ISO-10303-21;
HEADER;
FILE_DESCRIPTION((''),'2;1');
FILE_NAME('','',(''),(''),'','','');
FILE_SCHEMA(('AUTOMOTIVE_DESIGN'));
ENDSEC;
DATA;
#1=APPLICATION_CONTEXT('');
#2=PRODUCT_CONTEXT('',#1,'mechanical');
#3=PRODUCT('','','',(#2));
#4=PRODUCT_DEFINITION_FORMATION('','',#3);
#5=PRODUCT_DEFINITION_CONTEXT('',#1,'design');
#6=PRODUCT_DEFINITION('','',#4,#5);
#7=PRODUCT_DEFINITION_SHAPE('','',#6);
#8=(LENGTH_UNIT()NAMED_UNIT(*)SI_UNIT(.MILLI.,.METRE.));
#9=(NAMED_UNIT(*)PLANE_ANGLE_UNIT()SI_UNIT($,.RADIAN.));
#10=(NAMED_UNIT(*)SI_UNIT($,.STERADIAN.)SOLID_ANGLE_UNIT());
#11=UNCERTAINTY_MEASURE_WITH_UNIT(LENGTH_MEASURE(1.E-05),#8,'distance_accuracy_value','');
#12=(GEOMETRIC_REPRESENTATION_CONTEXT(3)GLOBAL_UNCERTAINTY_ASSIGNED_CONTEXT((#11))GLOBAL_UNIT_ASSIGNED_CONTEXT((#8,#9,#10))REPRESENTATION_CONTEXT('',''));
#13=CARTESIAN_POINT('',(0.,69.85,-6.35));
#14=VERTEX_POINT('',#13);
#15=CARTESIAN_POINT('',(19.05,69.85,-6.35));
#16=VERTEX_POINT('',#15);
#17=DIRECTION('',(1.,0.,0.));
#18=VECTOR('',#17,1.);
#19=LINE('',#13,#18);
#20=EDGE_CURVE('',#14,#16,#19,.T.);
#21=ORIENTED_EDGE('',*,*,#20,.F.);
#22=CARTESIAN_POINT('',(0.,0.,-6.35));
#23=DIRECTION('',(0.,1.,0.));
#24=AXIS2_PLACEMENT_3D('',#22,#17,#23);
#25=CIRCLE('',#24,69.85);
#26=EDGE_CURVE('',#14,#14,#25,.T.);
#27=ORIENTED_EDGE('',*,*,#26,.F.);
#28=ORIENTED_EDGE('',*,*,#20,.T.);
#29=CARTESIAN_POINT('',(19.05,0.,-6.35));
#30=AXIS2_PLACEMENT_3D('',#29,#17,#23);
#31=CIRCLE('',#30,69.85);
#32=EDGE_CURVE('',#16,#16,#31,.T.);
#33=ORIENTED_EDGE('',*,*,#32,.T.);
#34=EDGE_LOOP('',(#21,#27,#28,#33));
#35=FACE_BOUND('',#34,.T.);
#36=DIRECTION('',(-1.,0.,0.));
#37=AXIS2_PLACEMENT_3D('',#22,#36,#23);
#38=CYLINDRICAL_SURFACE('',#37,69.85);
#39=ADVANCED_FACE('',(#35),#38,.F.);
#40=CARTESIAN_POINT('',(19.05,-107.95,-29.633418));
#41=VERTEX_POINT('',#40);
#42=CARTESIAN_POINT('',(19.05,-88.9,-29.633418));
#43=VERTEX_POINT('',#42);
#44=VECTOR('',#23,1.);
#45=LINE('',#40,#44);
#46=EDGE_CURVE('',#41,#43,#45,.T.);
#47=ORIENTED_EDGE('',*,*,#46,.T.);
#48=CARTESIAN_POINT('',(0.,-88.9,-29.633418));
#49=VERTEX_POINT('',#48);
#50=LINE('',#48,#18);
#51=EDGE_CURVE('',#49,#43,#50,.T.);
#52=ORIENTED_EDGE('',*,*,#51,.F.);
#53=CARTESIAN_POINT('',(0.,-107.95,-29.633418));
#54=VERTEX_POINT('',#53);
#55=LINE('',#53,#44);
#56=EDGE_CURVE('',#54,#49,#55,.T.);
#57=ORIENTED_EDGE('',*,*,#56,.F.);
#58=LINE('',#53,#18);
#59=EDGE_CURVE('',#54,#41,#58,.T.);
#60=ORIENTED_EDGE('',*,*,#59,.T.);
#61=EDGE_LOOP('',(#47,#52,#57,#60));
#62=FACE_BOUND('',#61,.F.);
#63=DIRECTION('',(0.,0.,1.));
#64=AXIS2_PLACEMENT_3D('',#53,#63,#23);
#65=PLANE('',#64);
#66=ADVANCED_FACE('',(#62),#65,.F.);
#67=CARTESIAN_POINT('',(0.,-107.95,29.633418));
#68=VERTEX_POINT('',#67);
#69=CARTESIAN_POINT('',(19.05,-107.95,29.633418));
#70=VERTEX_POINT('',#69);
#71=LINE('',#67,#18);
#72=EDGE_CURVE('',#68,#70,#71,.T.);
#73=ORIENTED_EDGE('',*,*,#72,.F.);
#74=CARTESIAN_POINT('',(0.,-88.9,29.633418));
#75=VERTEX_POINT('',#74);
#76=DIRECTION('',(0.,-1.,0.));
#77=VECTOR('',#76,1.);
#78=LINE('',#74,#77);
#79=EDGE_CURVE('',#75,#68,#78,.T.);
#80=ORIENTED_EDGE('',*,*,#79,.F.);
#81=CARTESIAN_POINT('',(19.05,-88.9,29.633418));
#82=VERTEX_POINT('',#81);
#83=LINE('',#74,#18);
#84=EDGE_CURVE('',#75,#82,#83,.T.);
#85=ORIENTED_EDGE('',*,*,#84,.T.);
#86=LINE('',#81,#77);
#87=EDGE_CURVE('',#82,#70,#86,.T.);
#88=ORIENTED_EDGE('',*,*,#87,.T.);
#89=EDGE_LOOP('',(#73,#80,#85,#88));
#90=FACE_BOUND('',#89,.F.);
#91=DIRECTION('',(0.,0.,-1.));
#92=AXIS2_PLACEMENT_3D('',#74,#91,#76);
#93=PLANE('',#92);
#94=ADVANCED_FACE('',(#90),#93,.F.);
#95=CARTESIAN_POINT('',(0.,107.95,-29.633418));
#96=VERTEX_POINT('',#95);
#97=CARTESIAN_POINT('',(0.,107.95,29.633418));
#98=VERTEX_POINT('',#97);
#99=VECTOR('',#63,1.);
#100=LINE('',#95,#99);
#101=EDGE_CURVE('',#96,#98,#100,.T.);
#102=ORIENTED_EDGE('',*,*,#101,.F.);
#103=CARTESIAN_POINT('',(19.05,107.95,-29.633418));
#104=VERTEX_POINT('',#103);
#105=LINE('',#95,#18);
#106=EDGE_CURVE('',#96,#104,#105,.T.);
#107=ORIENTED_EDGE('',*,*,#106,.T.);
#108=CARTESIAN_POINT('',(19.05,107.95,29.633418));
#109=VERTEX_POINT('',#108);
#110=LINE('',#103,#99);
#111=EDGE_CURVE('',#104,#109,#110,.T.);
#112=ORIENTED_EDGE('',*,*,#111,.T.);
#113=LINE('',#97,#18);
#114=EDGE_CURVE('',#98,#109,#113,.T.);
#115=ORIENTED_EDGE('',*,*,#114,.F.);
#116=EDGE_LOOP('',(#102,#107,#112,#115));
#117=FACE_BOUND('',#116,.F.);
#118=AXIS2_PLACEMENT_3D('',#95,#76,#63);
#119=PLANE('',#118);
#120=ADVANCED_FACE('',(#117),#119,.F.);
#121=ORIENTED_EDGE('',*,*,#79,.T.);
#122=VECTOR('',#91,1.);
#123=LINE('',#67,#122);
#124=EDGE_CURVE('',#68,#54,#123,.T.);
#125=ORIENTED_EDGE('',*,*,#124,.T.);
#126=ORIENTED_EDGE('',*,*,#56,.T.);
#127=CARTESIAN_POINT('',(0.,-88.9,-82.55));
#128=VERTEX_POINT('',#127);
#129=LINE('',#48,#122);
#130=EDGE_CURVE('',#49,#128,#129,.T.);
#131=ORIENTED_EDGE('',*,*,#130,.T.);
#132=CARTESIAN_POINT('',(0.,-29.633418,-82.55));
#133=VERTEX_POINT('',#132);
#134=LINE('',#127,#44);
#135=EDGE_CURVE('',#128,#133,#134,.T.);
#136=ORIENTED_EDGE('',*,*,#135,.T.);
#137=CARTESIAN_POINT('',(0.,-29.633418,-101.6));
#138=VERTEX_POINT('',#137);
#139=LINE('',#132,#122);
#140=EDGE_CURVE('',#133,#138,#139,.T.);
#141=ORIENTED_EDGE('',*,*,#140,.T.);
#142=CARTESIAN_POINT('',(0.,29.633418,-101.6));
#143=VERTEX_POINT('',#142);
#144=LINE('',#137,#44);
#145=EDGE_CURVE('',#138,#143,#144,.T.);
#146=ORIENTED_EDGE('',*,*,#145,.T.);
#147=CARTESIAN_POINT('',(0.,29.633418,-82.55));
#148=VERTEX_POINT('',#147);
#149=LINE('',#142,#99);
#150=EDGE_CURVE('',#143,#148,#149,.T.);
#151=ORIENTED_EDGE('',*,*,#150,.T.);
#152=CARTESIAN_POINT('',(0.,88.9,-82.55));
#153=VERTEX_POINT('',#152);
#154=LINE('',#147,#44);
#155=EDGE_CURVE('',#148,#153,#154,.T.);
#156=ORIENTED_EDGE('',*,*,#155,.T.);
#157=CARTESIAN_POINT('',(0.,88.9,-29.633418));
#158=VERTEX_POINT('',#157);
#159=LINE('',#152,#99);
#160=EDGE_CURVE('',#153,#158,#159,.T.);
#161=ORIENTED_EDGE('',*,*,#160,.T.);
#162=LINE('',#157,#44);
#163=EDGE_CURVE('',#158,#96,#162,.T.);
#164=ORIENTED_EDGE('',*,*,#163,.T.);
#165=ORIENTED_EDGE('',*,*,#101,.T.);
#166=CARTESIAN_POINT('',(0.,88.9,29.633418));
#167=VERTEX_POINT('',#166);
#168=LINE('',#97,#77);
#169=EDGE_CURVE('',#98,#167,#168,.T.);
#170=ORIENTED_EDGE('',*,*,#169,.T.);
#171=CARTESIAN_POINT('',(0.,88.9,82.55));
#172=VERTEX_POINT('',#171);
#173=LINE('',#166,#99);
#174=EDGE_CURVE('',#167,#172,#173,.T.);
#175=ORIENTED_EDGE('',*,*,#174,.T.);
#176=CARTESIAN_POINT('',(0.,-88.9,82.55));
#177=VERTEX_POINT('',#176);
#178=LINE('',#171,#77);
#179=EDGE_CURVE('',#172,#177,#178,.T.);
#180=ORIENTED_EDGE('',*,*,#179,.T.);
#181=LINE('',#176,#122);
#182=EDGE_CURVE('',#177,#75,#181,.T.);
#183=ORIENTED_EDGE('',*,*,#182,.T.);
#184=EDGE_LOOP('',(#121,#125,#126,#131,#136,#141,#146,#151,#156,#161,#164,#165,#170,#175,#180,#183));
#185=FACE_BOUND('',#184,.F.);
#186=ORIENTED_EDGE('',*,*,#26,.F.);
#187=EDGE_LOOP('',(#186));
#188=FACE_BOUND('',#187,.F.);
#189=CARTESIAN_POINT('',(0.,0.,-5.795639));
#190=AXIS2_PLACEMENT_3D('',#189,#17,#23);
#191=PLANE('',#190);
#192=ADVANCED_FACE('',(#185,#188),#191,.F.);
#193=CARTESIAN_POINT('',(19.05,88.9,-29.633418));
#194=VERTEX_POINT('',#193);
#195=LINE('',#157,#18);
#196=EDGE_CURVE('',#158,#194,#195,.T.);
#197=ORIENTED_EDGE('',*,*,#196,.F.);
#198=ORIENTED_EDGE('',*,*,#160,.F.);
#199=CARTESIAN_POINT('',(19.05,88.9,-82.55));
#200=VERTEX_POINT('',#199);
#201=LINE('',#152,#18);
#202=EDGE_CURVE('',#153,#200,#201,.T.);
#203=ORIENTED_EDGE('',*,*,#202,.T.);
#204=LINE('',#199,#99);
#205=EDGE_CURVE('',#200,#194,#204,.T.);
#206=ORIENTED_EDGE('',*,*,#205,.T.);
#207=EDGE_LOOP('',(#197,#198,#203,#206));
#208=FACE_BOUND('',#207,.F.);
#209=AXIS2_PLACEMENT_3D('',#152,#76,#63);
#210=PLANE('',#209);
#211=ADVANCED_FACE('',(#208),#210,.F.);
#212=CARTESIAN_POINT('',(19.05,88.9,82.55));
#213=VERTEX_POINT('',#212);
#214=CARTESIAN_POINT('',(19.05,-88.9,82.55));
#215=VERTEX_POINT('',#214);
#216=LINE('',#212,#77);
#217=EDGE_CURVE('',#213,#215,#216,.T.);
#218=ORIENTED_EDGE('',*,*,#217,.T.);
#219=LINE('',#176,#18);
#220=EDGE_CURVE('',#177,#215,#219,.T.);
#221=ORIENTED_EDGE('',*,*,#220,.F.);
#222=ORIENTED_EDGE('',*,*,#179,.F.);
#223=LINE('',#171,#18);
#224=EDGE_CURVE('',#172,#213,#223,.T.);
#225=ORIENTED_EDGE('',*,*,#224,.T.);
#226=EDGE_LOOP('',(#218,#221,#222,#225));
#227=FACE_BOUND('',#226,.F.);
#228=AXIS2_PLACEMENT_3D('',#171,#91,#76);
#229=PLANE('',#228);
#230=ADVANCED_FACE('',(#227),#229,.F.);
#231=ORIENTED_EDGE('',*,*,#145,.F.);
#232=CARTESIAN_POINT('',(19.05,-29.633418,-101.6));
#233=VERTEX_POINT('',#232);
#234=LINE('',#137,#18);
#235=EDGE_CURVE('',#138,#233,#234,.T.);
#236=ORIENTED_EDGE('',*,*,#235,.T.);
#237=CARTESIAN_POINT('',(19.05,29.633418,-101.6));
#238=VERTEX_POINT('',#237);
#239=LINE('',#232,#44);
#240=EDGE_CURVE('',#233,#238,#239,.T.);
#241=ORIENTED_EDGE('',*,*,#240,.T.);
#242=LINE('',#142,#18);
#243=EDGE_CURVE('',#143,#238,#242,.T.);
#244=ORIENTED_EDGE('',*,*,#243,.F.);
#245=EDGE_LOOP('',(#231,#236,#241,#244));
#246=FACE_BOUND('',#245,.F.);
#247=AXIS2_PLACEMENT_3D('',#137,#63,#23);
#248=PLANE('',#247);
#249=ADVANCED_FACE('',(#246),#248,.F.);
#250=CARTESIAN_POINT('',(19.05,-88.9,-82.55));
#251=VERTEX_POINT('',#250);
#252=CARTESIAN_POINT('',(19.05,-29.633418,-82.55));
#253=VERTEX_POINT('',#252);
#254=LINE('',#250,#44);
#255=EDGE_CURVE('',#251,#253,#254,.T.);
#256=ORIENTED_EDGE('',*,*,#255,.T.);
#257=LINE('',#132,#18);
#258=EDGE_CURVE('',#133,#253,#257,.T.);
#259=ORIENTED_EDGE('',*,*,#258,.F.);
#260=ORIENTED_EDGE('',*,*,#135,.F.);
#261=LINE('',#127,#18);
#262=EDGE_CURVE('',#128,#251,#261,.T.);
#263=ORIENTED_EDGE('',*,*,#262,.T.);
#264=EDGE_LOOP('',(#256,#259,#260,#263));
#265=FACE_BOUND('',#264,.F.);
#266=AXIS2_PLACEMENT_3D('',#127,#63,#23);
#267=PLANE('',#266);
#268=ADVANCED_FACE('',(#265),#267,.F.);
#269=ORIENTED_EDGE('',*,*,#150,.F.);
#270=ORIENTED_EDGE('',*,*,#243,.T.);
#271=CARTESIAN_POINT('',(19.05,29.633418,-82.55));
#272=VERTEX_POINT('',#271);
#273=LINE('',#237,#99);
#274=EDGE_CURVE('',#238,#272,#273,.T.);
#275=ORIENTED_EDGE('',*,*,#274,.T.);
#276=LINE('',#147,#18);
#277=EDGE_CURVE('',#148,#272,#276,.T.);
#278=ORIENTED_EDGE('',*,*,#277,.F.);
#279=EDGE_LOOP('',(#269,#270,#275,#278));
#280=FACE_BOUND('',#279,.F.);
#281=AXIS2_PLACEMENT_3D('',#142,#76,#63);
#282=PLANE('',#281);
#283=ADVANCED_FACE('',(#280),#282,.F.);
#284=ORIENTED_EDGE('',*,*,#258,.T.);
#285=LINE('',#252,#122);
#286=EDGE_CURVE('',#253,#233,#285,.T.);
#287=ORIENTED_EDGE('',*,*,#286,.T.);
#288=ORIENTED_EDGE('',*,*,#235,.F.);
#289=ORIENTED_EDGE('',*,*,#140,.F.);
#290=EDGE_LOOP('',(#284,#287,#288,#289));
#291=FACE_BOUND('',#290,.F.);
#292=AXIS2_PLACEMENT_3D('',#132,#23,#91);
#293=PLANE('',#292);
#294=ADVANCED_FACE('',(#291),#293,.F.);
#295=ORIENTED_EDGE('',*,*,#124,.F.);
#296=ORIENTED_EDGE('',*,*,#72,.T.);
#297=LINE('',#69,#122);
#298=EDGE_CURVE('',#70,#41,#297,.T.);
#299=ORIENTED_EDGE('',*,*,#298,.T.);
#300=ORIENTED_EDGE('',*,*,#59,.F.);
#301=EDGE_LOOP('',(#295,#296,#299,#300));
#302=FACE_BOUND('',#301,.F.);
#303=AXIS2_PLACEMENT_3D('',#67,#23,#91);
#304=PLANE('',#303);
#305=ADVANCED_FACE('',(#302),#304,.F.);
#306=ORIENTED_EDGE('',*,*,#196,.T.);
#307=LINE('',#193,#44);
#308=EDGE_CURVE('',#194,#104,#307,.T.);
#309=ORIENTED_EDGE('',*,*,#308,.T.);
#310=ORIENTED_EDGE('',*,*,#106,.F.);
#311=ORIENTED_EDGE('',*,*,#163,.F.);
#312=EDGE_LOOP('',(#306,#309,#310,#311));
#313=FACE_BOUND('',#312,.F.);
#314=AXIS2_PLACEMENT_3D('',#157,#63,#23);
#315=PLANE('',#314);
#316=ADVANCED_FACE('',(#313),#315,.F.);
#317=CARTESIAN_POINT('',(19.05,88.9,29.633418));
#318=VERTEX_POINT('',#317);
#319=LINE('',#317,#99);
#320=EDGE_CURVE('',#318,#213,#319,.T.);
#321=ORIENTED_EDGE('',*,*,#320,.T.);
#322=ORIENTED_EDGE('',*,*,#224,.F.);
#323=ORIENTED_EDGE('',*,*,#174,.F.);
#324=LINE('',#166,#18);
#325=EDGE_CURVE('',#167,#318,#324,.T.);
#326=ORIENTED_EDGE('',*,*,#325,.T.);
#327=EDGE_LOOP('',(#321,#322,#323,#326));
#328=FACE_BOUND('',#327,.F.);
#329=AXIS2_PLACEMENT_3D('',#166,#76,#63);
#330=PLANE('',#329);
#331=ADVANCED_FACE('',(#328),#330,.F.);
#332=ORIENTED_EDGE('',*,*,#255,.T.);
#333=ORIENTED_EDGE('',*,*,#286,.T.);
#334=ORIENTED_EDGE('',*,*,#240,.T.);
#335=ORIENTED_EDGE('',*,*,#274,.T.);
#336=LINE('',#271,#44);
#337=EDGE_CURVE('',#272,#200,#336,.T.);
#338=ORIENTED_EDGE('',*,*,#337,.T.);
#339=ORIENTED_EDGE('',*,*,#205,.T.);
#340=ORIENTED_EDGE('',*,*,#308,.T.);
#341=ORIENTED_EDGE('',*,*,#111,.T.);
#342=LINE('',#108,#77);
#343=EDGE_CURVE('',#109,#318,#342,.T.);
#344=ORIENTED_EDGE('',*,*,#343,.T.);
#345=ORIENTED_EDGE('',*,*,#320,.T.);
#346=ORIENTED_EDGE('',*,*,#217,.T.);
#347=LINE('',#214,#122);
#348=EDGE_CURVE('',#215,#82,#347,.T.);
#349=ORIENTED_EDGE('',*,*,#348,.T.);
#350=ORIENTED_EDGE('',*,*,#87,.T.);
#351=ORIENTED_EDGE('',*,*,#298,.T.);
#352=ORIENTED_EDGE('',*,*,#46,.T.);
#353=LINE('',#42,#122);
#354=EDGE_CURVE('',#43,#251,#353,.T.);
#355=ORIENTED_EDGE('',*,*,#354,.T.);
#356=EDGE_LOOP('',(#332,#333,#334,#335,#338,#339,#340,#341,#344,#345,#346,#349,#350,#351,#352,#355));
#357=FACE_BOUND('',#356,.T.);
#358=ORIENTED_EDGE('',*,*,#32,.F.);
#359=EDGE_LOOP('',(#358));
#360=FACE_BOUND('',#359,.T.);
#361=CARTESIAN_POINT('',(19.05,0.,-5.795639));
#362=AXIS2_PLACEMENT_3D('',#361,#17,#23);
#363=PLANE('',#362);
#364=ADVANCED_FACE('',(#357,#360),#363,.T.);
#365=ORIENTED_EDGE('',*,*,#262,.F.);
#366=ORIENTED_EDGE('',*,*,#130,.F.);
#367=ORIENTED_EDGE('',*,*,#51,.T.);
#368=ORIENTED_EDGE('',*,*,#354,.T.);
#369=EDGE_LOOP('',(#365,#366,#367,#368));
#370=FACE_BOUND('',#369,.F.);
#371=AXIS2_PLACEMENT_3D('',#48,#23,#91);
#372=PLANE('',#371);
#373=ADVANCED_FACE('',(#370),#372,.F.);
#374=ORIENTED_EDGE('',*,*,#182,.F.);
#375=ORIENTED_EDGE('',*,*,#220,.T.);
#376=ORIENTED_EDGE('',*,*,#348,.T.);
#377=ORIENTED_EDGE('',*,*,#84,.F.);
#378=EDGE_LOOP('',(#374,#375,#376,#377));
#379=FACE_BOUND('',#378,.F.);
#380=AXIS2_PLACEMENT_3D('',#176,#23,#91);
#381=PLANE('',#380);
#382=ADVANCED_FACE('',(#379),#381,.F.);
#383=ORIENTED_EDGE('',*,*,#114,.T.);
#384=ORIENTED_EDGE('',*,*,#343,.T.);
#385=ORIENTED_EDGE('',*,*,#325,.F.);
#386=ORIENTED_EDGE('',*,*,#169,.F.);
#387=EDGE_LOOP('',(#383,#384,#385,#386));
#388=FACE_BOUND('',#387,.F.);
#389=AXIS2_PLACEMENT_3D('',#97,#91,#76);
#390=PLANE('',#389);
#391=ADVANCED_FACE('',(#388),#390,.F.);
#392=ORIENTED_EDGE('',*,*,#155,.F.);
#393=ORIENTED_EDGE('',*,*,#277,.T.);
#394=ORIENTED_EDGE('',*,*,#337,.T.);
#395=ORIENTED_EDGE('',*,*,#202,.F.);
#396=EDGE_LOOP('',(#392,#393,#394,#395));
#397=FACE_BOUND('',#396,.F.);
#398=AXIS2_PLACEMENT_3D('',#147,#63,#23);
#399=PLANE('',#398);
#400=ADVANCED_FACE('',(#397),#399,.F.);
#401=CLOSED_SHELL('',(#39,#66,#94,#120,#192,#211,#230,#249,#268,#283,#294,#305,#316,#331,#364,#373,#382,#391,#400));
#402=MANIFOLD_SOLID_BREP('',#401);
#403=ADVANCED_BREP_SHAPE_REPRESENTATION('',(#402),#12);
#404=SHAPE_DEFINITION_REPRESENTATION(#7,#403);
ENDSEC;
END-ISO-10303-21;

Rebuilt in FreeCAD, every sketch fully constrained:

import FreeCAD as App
import Part
import Sketcher
from FreeCAD import Vector
Q = App.Units.Quantity

doc = App.newDocument("Part")
body = doc.addObject("PartDesign::Body", "Body")

# Sketch on YZ plane
sketch1 = body.newObject("Sketcher::SketchObject", "Sketch")
sketch1.AttachmentSupport = (doc.getObject("YZ_Plane"), [""])
sketch1.MapMode = "FlatFace"
sketch1.addGeometry(Part.LineSegment(Vector(89, 83, 0), Vector(-89, 83, 0)), False)
sketch1.addGeometry(Part.LineSegment(Vector(-89, 83, 0), Vector(-89, 30, 0)), False)
sketch1.addGeometry(Part.LineSegment(Vector(-89, 30, 0), Vector(-108, 30, 0)), False)
sketch1.addGeometry(Part.LineSegment(Vector(-108, 30, 0), Vector(-108, -30, 0)), False)
sketch1.addGeometry(Part.LineSegment(Vector(-108, -30, 0), Vector(-89, -30, 0)), False)
sketch1.addGeometry(Part.LineSegment(Vector(-89, -30, 0), Vector(-89, -83, 0)), False)
sketch1.addGeometry(Part.LineSegment(Vector(-89, -83, 0), Vector(-30, -83, 0)), False)
sketch1.addGeometry(Part.LineSegment(Vector(-30, -83, 0), Vector(-30, -102, 0)), False)
sketch1.addGeometry(Part.LineSegment(Vector(-30, -102, 0), Vector(30, -102, 0)), False)
sketch1.addGeometry(Part.LineSegment(Vector(30, -102, 0), Vector(30, -83, 0)), False)
sketch1.addGeometry(Part.LineSegment(Vector(30, -83, 0), Vector(89, -83, 0)), False)
sketch1.addGeometry(Part.LineSegment(Vector(89, -83, 0), Vector(89, -30, 0)), False)
sketch1.addGeometry(Part.LineSegment(Vector(89, -30, 0), Vector(108, -30, 0)), False)
sketch1.addGeometry(Part.LineSegment(Vector(108, -30, 0), Vector(108, 30, 0)), False)
sketch1.addGeometry(Part.LineSegment(Vector(108, 30, 0), Vector(89, 30, 0)), False)
sketch1.addGeometry(Part.LineSegment(Vector(89, 30, 0), Vector(89, 83, 0)), False)
sketch1.addGeometry(Part.Circle(Vector(0, -6, 0), Vector(0, 0, 1), 70), False)
sketch1.addConstraint(Sketcher.Constraint("Coincident", 0, 2, 1, 1))
sketch1.addConstraint(Sketcher.Constraint("Coincident", 1, 2, 2, 1))
sketch1.addConstraint(Sketcher.Constraint("Coincident", 2, 2, 3, 1))
sketch1.addConstraint(Sketcher.Constraint("Coincident", 3, 2, 4, 1))
sketch1.addConstraint(Sketcher.Constraint("Coincident", 4, 2, 5, 1))
sketch1.addConstraint(Sketcher.Constraint("Coincident", 5, 2, 6, 1))
sketch1.addConstraint(Sketcher.Constraint("Coincident", 6, 2, 7, 1))
sketch1.addConstraint(Sketcher.Constraint("Coincident", 7, 2, 8, 1))
sketch1.addConstraint(Sketcher.Constraint("Coincident", 8, 2, 9, 1))
sketch1.addConstraint(Sketcher.Constraint("Coincident", 9, 2, 10, 1))
sketch1.addConstraint(Sketcher.Constraint("Coincident", 10, 2, 11, 1))
sketch1.addConstraint(Sketcher.Constraint("Coincident", 11, 2, 12, 1))
sketch1.addConstraint(Sketcher.Constraint("Coincident", 12, 2, 13, 1))
sketch1.addConstraint(Sketcher.Constraint("Coincident", 13, 2, 14, 1))
sketch1.addConstraint(Sketcher.Constraint("Coincident", 14, 2, 15, 1))
sketch1.addConstraint(Sketcher.Constraint("Coincident", 15, 2, 0, 1))
sketch1.addConstraint(Sketcher.Constraint("Horizontal", 0))
sketch1.addConstraint(Sketcher.Constraint("Vertical", 1))
sketch1.addConstraint(Sketcher.Constraint("Horizontal", 2))
sketch1.addConstraint(Sketcher.Constraint("Vertical", 3))
sketch1.addConstraint(Sketcher.Constraint("Horizontal", 4))
sketch1.addConstraint(Sketcher.Constraint("Vertical", 5))
sketch1.addConstraint(Sketcher.Constraint("Horizontal", 6))
sketch1.addConstraint(Sketcher.Constraint("Vertical", 7))
sketch1.addConstraint(Sketcher.Constraint("Horizontal", 8))
sketch1.addConstraint(Sketcher.Constraint("Vertical", 9))
sketch1.addConstraint(Sketcher.Constraint("Horizontal", 10))
sketch1.addConstraint(Sketcher.Constraint("Vertical", 11))
sketch1.addConstraint(Sketcher.Constraint("Horizontal", 12))
sketch1.addConstraint(Sketcher.Constraint("Vertical", 13))
sketch1.addConstraint(Sketcher.Constraint("Horizontal", 14))
sketch1.addConstraint(Sketcher.Constraint("Vertical", 15))
sketch1.addConstraint(Sketcher.Constraint("Symmetric", 0, 2, 10, 2, -1, 1))
sketch1.addConstraint(Sketcher.Constraint("Symmetric", 2, 2, 12, 2, -1, 1))
sketch1.addConstraint(Sketcher.Constraint("Symmetric", 4, 2, 14, 2, -1, 1))
sketch1.addConstraint(Sketcher.Constraint("Symmetric", 6, 2, 9, 2, -2))
sketch1.addConstraint(Sketcher.Constraint("Symmetric", 4, 2, 11, 2, -2))
sketch1.addConstraint(Sketcher.Constraint("PointOnObject", 16, 3, -2))
sketch1.addConstraint(Sketcher.Constraint("Equal", 8, 3))
sketch1.addConstraint(Sketcher.Constraint("Equal", 14, 7))
sketch1.addConstraint(Sketcher.Constraint("Diameter", 16, Q("5.5 in")))
sketch1.addConstraint(Sketcher.Constraint("DistanceX", 0, 2, 0, 1, Q("7 in")))
sketch1.addConstraint(Sketcher.Constraint("DistanceY", 7, 2, -1, 1, Q("4 in")))
sketch1.addConstraint(Sketcher.Constraint("DistanceY", 5, 2, 16, 3, Q("3 in")))
sketch1.addConstraint(Sketcher.Constraint("DistanceX", 2, 2, 2, 1, Q("0.75 in")))
sketch1.addConstraint(Sketcher.Constraint("DistanceY", 1, 2, 1, 1, Q("52.916582 mm")))
pad1 = body.newObject("PartDesign::Pad", "Pad")
pad1.Profile = sketch1
pad1.Length = Q("0.75 in")

doc.recompute()
